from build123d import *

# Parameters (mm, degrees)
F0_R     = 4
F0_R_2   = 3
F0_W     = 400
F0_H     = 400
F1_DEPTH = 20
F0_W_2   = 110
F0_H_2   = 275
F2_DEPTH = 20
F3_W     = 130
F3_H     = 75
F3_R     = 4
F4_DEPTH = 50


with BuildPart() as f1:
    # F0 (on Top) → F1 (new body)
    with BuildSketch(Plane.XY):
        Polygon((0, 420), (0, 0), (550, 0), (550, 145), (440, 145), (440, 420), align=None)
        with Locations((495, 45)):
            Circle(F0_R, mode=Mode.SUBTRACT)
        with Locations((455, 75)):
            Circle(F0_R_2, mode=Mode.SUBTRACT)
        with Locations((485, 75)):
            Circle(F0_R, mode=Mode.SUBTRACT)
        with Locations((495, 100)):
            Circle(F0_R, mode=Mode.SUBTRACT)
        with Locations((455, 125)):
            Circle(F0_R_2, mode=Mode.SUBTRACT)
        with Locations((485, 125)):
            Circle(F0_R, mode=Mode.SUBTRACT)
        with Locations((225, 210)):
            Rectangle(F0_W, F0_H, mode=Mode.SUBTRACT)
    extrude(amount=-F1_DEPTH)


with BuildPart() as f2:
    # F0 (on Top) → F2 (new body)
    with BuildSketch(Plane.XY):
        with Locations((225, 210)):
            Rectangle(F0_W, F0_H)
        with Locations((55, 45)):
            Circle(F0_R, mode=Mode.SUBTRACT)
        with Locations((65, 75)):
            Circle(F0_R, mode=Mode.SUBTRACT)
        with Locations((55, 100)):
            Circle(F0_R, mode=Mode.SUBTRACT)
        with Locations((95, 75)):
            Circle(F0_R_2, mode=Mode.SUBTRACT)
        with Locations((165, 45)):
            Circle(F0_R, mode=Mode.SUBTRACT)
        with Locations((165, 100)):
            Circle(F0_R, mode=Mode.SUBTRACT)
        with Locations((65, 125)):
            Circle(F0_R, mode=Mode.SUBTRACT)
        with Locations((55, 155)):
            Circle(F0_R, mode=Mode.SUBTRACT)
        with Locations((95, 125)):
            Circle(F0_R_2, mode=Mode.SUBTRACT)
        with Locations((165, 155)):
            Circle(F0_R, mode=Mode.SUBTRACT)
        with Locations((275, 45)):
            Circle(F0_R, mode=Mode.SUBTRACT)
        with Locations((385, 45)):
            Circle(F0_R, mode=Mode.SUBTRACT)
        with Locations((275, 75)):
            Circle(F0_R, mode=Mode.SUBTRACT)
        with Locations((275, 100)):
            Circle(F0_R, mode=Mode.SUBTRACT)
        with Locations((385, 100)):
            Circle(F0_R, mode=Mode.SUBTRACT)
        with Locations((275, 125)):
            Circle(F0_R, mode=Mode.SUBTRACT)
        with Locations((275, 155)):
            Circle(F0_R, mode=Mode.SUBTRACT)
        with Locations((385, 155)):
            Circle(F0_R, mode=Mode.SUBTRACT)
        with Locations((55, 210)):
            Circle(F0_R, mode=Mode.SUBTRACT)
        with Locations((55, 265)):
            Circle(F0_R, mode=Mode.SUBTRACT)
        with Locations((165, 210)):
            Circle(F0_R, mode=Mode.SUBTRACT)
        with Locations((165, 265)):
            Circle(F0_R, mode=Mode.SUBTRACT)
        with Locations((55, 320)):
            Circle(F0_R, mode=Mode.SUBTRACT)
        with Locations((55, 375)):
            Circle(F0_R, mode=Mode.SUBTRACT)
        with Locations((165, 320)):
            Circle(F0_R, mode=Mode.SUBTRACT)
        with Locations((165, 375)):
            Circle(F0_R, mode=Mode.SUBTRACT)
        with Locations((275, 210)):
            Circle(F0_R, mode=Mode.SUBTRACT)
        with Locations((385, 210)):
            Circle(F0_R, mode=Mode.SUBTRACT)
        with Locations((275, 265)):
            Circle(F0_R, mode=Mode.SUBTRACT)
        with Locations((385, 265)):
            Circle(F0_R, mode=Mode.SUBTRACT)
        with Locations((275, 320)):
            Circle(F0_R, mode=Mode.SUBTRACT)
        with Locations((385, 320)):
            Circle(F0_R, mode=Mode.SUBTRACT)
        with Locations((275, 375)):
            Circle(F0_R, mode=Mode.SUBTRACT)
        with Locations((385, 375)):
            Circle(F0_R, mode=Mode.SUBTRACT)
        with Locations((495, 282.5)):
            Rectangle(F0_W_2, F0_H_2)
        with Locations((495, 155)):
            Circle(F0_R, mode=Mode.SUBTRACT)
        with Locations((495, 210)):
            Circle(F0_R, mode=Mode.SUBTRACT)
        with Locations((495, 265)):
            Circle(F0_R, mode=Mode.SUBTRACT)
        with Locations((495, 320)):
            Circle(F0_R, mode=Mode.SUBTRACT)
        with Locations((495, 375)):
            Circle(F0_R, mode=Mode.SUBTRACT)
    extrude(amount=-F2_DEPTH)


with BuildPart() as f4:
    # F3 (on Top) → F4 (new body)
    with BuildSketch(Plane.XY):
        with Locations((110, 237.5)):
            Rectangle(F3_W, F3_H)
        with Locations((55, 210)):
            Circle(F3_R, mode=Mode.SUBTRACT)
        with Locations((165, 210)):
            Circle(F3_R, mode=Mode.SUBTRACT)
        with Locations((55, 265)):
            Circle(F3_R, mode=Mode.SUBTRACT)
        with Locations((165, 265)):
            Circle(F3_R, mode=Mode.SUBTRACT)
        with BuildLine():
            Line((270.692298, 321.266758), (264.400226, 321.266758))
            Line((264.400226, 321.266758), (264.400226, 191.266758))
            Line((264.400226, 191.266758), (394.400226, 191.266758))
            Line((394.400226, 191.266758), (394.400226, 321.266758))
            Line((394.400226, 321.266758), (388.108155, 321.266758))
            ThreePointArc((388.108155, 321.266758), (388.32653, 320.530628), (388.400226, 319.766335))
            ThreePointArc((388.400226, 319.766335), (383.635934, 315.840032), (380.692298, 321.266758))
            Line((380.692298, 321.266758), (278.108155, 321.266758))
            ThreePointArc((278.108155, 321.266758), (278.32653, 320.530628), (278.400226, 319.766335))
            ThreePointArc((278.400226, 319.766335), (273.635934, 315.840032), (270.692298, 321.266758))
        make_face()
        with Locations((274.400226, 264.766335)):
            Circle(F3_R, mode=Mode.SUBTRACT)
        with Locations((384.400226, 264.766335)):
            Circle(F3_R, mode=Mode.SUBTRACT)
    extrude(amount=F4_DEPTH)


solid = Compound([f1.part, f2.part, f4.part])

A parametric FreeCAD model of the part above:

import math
import FreeCAD as App
import Part
import Sketcher
Q = App.Units.Quantity


def add_polygon(sketch, points):
    """Adds a closed chain of lines whose ends are joined by coincident constraints."""
    first, n = sketch.GeometryCount, len(points)
    for a, b in zip(points, points[1:] + points[:1]):
        sketch.addGeometry(Part.LineSegment(App.Vector(*a, 0), App.Vector(*b, 0)), False)
    for i in range(n):
        sketch.addConstraint(Sketcher.Constraint("Coincident", first + i, 2, first + (i + 1) % n, 1))

doc = App.newDocument("Part")
body = doc.addObject("PartDesign::Body", "Body")

sketch1 = doc.addObject("Sketcher::SketchObject", "Sketch")
body.addObject(sketch1)
sketch1.AttachmentSupport = (doc.XY_Plane, [""])
sketch1.MapMode = "FlatFace"
add_polygon(sketch1, [(0, 420), (0, 0), (550, 0), (550, 145), (440, 145), (440, 420)])
sketch1.addGeometry(Part.Circle(App.Vector(495, 45, 0), App.Vector(0, 0, 1), 4), False)
sketch1.addGeometry(Part.Circle(App.Vector(455, 75, 0), App.Vector(0, 0, 1), 3), False)
sketch1.addGeometry(Part.Circle(App.Vector(485, 75, 0), App.Vector(0, 0, 1), 4), False)
sketch1.addGeometry(Part.Circle(App.Vector(495, 100, 0), App.Vector(0, 0, 1), 4), False)
sketch1.addGeometry(Part.Circle(App.Vector(455, 125, 0), App.Vector(0, 0, 1), 3), False)
sketch1.addGeometry(Part.Circle(App.Vector(485, 125, 0), App.Vector(0, 0, 1), 4), False)
add_polygon(sketch1, [(425, 10), (25, 10), (25, 410), (425, 410)])
sketch1.addConstraint([
    Sketcher.Constraint("Vertical", 0),
    Sketcher.Constraint("Horizontal", 1),
    Sketcher.Constraint("Vertical", 2),
    Sketcher.Constraint("Horizontal", 3),
    Sketcher.Constraint("Vertical", 4),
    Sketcher.Constraint("Horizontal", 5),
    Sketcher.Constraint("Horizontal", 12),
    Sketcher.Constraint("Vertical", 13),
    Sketcher.Constraint("Horizontal", 14),
    Sketcher.Constraint("Vertical", 15),
    Sketcher.Constraint("Coincident", 0, 2, -1, 1),
    Sketcher.Constraint("Equal", 6, 8),
    Sketcher.Constraint("Equal", 8, 9),
    Sketcher.Constraint("Equal", 7, 10),
    Sketcher.Constraint("Equal", 9, 11),
    Sketcher.Constraint("Horizontal", 7, 3, 8, 3),
    Sketcher.Constraint("Horizontal", 10, 3, 11, 3),
    Sketcher.Constraint("Vertical", 6, 3, 9, 3),
    Sketcher.Constraint("Vertical", 7, 3, 10, 3),
    Sketcher.Constraint("Vertical", 8, 3, 11, 3),
    Sketcher.Constraint("Equal", 14, 13),
    Sketcher.Constraint("Diameter", 6, Q("8 mm")),
    Sketcher.Constraint("Diameter", 7, Q("6 mm")),
    Sketcher.Constraint("DistanceX", 1, 1, 1, 2, Q("550 mm")),
    Sketcher.Constraint("DistanceX", 3, 2, 3, 1, Q("110 mm")),
    Sketcher.Constraint("DistanceX", 12, 2, 12, 1, Q("400 mm")),
    Sketcher.Constraint("DistanceY", 0, 2, 0, 1, Q("420 mm")),
    Sketcher.Constraint("DistanceY", 2, 1, 2, 2, Q("145 mm")),
    Sketcher.Constraint("DistanceX", -1, 1, 6, 3, Q("495 mm")),
    Sketcher.Constraint("DistanceY", -1, 1, 6, 3, Q("45 mm")),
    Sketcher.Constraint("DistanceX", -1, 1, 7, 3, Q("455 mm")),
    Sketcher.Constraint("DistanceY", -1, 1, 7, 3, Q("75 mm")),
    Sketcher.Constraint("DistanceX", -1, 1, 8, 3, Q("485 mm")),
    Sketcher.Constraint("DistanceY", -1, 1, 9, 3, Q("100 mm")),
    Sketcher.Constraint("DistanceY", -1, 1, 10, 3, Q("125 mm")),
    Sketcher.Constraint("DistanceX", -1, 1, 12, 2, Q("25 mm")),
    Sketcher.Constraint("DistanceY", -1, 1, 12, 2, Q("10 mm")),
])
pad1 = doc.addObject("PartDesign::Pad", "Pad")
body.addObject(pad1)
pad1.Profile = sketch1
pad1.Length = 20
pad1.Reversed = True
body2 = doc.addObject("PartDesign::Body", "Body001")
body2.AllowCompound = True

sketch2 = doc.addObject("Sketcher::SketchObject", "Sketch001")
body2.addObject(sketch2)
sketch2.AttachmentSupport = (doc.getObject("XY_Plane001"), [""])
sketch2.MapMode = "FlatFace"
add_polygon(sketch2, [(25, 410), (25, 10), (425, 10), (425, 410)])
sketch2.addGeometry(Part.Circle(App.Vector(55, 45, 0), App.Vector(0, 0, 1), 4), False)
sketch2.addGeometry(Part.Circle(App.Vector(65, 75, 0), App.Vector(0, 0, 1), 4), False)
sketch2.addGeometry(Part.Circle(App.Vector(95, 75, 0), App.Vector(0, 0, 1), 3), False)
sketch2.addGeometry(Part.Circle(App.Vector(55, 100, 0), App.Vector(0, 0, 1), 4), False)
sketch2.addGeometry(Part.Circle(App.Vector(65, 125, 0), App.Vector(0, 0, 1), 4), False)
sketch2.addGeometry(Part.Circle(App.Vector(95, 125, 0), App.Vector(0, 0, 1), 3), False)
sketch2.addGeometry(Part.Circle(App.Vector(165, 45, 0), App.Vector(0, 0, 1), 4), False)
sketch2.addGeometry(Part.Circle(App.Vector(165, 100, 0), App.Vector(0, 0, 1), 4), False)
sketch2.addGeometry(Part.Circle(App.Vector(55, 155, 0), App.Vector(0, 0, 1), 4), False)
sketch2.addGeometry(Part.Circle(App.Vector(165, 155, 0), App.Vector(0, 0, 1), 4), False)
sketch2.addGeometry(Part.Circle(App.Vector(275, 45, 0), App.Vector(0, 0, 1), 4), False)
sketch2.addGeometry(Part.Circle(App.Vector(275, 75, 0), App.Vector(0, 0, 1), 4), False)
sketch2.addGeometry(Part.Circle(App.Vector(275, 100, 0), App.Vector(0, 0, 1), 4), False)
sketch2.addGeometry(Part.Circle(App.Vector(275, 125, 0), App.Vector(0, 0, 1), 4), False)
sketch2.addGeometry(Part.Circle(App.Vector(385, 45, 0), App.Vector(0, 0, 1), 4), False)
sketch2.addGeometry(Part.Circle(App.Vector(385, 100, 0), App.Vector(0, 0, 1), 4), False)
sketch2.addGeometry(Part.Circle(App.Vector(275, 155, 0), App.Vector(0, 0, 1), 4), False)
sketch2.addGeometry(Part.Circle(App.Vector(385, 155, 0), App.Vector(0, 0, 1), 4), False)
sketch2.addGeometry(Part.Circle(App.Vector(55, 210, 0), App.Vector(0, 0, 1), 4), False)
sketch2.addGeometry(Part.Circle(App.Vector(55, 265, 0), App.Vector(0, 0, 1), 4), False)
sketch2.addGeometry(Part.Circle(App.Vector(165, 210, 0), App.Vector(0, 0, 1), 4), False)
sketch2.addGeometry(Part.Circle(App.Vector(165, 265, 0), App.Vector(0, 0, 1), 4), False)
sketch2.addGeometry(Part.Circle(App.Vector(55, 320, 0), App.Vector(0, 0, 1), 4), False)
sketch2.addGeometry(Part.Circle(App.Vector(55, 375, 0), App.Vector(0, 0, 1), 4), False)
sketch2.addGeometry(Part.Circle(App.Vector(165, 320, 0), App.Vector(0, 0, 1), 4), False)
sketch2.addGeometry(Part.Circle(App.Vector(165, 375, 0), App.Vector(0, 0, 1), 4), False)
sketch2.addGeometry(Part.Circle(App.Vector(275, 210, 0), App.Vector(0, 0, 1), 4), False)
sketch2.addGeometry(Part.Circle(App.Vector(275, 265, 0), App.Vector(0, 0, 1), 4), False)
sketch2.addGeometry(Part.Circle(App.Vector(385, 210, 0), App.Vector(0, 0, 1), 4), False)
sketch2.addGeometry(Part.Circle(App.Vector(385, 265, 0), App.Vector(0, 0, 1), 4), False)
sketch2.addGeometry(Part.Circle(App.Vector(275, 320, 0), App.Vector(0, 0, 1), 4), False)
sketch2.addGeometry(Part.Circle(App.Vector(275, 375, 0), App.Vector(0, 0, 1), 4), False)
sketch2.addGeometry(Part.Circle(App.Vector(385, 320, 0), App.Vector(0, 0, 1), 4), False)
sketch2.addGeometry(Part.Circle(App.Vector(385, 375, 0), App.Vector(0, 0, 1), 4), False)
add_polygon(sketch2, [(440, 420), (440, 145), (550, 145), (550, 420)])
sketch2.addGeometry(Part.Circle(App.Vector(495, 155, 0), App.Vector(0, 0, 1), 4), False)
sketch2.addGeometry(Part.Circle(App.Vector(495, 210, 0), App.Vector(0, 0, 1), 4), False)
sketch2.addGeometry(Part.Circle(App.Vector(495, 265, 0), App.Vector(0, 0, 1), 4), False)
sketch2.addGeometry(Part.Circle(App.Vector(495, 320, 0), App.Vector(0, 0, 1), 4), False)
sketch2.addGeometry(Part.Circle(App.Vector(495, 375, 0), App.Vector(0, 0, 1), 4), False)
sketch2.addConstraint([
    Sketcher.Constraint("Vertical", 0),
    Sketcher.Constraint("Horizontal", 1),
    Sketcher.Constraint("Vertical", 2),
    Sketcher.Constraint("Horizontal", 3),
    Sketcher.Constraint("Vertical", 38),
    Sketcher.Constraint("Horizontal", 39),
    Sketcher.Constraint("Vertical", 40),
    Sketcher.Constraint("Horizontal", 41),
    Sketcher.Constraint("Equal", 4, 5),
    Sketcher.Constraint("Equal", 5, 7),
    Sketcher.Constraint("Equal", 7, 8),
    Sketcher.Constraint("Equal", 6, 9),
    Sketcher.Constraint("Equal", 8, 10),
    Sketcher.Constraint("Equal", 10, 11),
    Sketcher.Constraint("Equal", 11, 12),
    Sketcher.Constraint("Equal", 12, 13),
    Sketcher.Constraint("Equal", 13, 14),
    Sketcher.Constraint("Equal", 14, 15),
    Sketcher.Constraint("Equal", 15, 16),
    Sketcher.Constraint("Equal", 16, 17),
    Sketcher.Constraint("Equal", 17, 18),
    Sketcher.Constraint("Equal", 18, 19),
    Sketcher.Constraint("Equal", 19, 20),
    Sketcher.Constraint("Equal", 20, 21),
    Sketcher.Constraint("Equal", 21, 22),
    Sketcher.Constraint("Equal", 22, 23),
    Sketcher.Constraint("Equal", 23, 24),
    Sketcher.Constraint("Equal", 24, 25),
    Sketcher.Constraint("Equal", 25, 26),
    Sketcher.Constraint("Equal", 26, 27),
    Sketcher.Constraint("Equal", 27, 28),
    Sketcher.Constraint("Equal", 28, 29),
    Sketcher.Constraint("Equal", 29, 30),
    Sketcher.Constraint("Equal", 30, 31),
    Sketcher.Constraint("Equal", 31, 32),
    Sketcher.Constraint("Equal", 32, 33),
    Sketcher.Constraint("Equal", 33, 34),
    Sketcher.Constraint("Equal", 34, 35),
    Sketcher.Constraint("Equal", 35, 36),
    Sketcher.Constraint("Equal", 36, 37),
    Sketcher.Constraint("Equal", 37, 42),
    Sketcher.Constraint("Equal", 42, 43),
    Sketcher.Constraint("Equal", 43, 44),
    Sketcher.Constraint("Equal", 44, 45),
    Sketcher.Constraint("Equal", 45, 46),
    Sketcher.Constraint("Horizontal", 5, 3, 6, 3),
    Sketcher.Constraint("Horizontal", 8, 3, 9, 3),
    Sketcher.Constraint("Horizontal", 4, 3, 10, 3),
    Sketcher.Constraint("Horizontal", 7, 3, 11, 3),
    Sketcher.Constraint("Horizontal", 12, 3, 13, 3),
    Sketcher.Constraint("Horizontal", 10, 3, 14, 3),
    Sketcher.Constraint("Horizontal", 6, 3, 15, 3),
    Sketcher.Constraint("Horizontal", 11, 3, 16, 3),
    Sketcher.Constraint("Horizontal", 9, 3, 17, 3),
    Sketcher.Constraint("Horizontal", 14, 3, 18, 3),
    Sketcher.Constraint("Horizontal", 16, 3, 19, 3),
    Sketcher.Constraint("Horizontal", 13, 3, 20, 3),
    Sketcher.Constraint("Horizontal", 20, 3, 21, 3),
    Sketcher.Constraint("Horizontal", 22, 3, 24, 3),
    Sketcher.Constraint("Horizontal", 23, 3, 25, 3),
    Sketcher.Constraint("Horizontal", 26, 3, 28, 3),
    Sketcher.Constraint("Horizontal", 27, 3, 29, 3),
    Sketcher.Constraint("Horizontal", 24, 3, 30, 3),
    Sketcher.Constraint("Horizontal", 25, 3, 31, 3),
    Sketcher.Constraint("Horizontal", 30, 3, 32, 3),
    Sketcher.Constraint("Horizontal", 31, 3, 33, 3),
    Sketcher.Constraint("Horizontal", 28, 3, 34, 3),
    Sketcher.Constraint("Horizontal", 29, 3, 35, 3),
    Sketcher.Constraint("Horizontal", 34, 3, 36, 3),
    Sketcher.Constraint("Horizontal", 35, 3, 37, 3),
    Sketcher.Constraint("Horizontal", 21, 3, 42, 3),
    Sketcher.Constraint("Horizontal", 32, 3, 43, 3),
    Sketcher.Constraint("Horizontal", 33, 3, 44, 3),
    Sketcher.Constraint("Horizontal", 36, 3, 45, 3),
    Sketcher.Constraint("Horizontal", 37, 3, 46, 3),
    Sketcher.Constraint("Vertical", 4, 3, 7, 3),
    Sketcher.Constraint("Vertical", 5, 3, 8, 3),
    Sketcher.Constraint("Vertical", 6, 3, 9, 3),
    Sketcher.Constraint("Vertical", 10, 3, 11, 3),
    Sketcher.Constraint("Vertical", 7, 3, 12, 3),
    Sketcher.Constraint("Vertical", 11, 3, 13, 3),
    Sketcher.Constraint("Vertical", 14, 3, 15, 3),
    Sketcher.Constraint("Vertical", 15, 3, 16, 3),
    Sketcher.Constraint("Vertical", 16, 3, 17, 3),
    Sketcher.Constraint("Vertical", 18, 3, 19, 3),
    Sketcher.Constraint("Vertical", 17, 3, 20, 3),
    Sketcher.Constraint("Vertical", 19, 3, 21, 3),
    Sketcher.Constraint("Vertical", 12, 3, 22, 3),
    Sketcher.Constraint("Vertical", 22, 3, 23, 3),
    Sketcher.Constraint("Vertical", 13, 3, 24, 3),
    Sketcher.Constraint("Vertical", 24, 3, 25, 3),
    Sketcher.Constraint("Vertical", 23, 3, 26, 3),
    Sketcher.Constraint("Vertical", 26, 3, 27, 3),
    Sketcher.Constraint("Vertical", 25, 3, 28, 3),
    Sketcher.Constraint("Vertical", 28, 3, 29, 3),
    Sketcher.Constraint("Vertical", 20, 3, 30, 3),
    Sketcher.Constraint("Vertical", 30, 3, 31, 3),
    Sketcher.Constraint("Vertical", 21, 3, 32, 3),
    Sketcher.Constraint("Vertical", 32, 3, 33, 3),
    Sketcher.Constraint("Vertical", 31, 3, 34, 3),
    Sketcher.Constraint("Vertical", 34, 3, 35, 3),
    Sketcher.Constraint("Vertical", 33, 3, 36, 3),
    Sketcher.Constraint("Vertical", 36, 3, 37, 3),
    Sketcher.Constraint("Vertical", 42, 3, 43, 3),
    Sketcher.Constraint("Vertical", 43, 3, 44, 3),
    Sketcher.Constraint("Vertical", 44, 3, 45, 3),
    Sketcher.Constraint("Vertical", 45, 3, 46, 3),
    Sketcher.Constraint("Equal", 3, 0),
    Sketcher.Constraint("Diameter", 4, Q("8 mm")),
    Sketcher.Constraint("Diameter", 6, Q("6 mm")),
    Sketcher.Constraint("DistanceX", 1, 1, 1, 2, Q("400 mm")),
    Sketcher.Constraint("DistanceX", 39, 1, 39, 2, Q("110 mm")),
    Sketcher.Constraint("DistanceY", 38, 2, 38, 1, Q("275 mm")),
    Sketcher.Constraint("DistanceX", -1, 1, 4, 3, Q("55 mm")),
    Sketcher.Constraint("DistanceY", -1, 1, 4, 3, Q("45 mm")),
    Sketcher.Constraint("DistanceX", -1, 1, 5, 3, Q("65 mm")),
    Sketcher.Constraint("DistanceY", -1, 1, 5, 3, Q("75 mm")),
    Sketcher.Constraint("DistanceX", -1, 1, 6, 3, Q("95 mm")),
    Sketcher.Constraint("DistanceY", -1, 1, 7, 3, Q("100 mm")),
    Sketcher.Constraint("DistanceY", -1, 1, 8, 3, Q("125 mm")),
    Sketcher.Constraint("DistanceX", -1, 1, 10, 3, Q("165 mm")),
    Sketcher.Constraint("DistanceY", -1, 1, 12, 3, Q("155 mm")),
    Sketcher.Constraint("DistanceX", -1, 1, 14, 3, Q("275 mm")),
    Sketcher.Constraint("DistanceX", -1, 1, 18, 3, Q("385 mm")),
    Sketcher.Constraint("DistanceY", -1, 1, 22, 3, Q("210 mm")),
    Sketcher.Constraint("DistanceY", -1, 1, 23, 3, Q("265 mm")),
    Sketcher.Constraint("DistanceY", -1, 1, 26, 3, Q("320 mm")),
    Sketcher.Constraint("DistanceY", -1, 1, 27, 3, Q("375 mm")),
    Sketcher.Constraint("DistanceX", -1, 1, 42, 3, Q("495 mm")),
    Sketcher.Constraint("DistanceX", -1, 1, 0, 2, Q("25 mm")),
    Sketcher.Constraint("DistanceY", -1, 1, 0, 2, Q("10 mm")),
    Sketcher.Constraint("DistanceX", -1, 1, 38, 2, Q("440 mm")),
    Sketcher.Constraint("DistanceY", -1, 1, 38, 2, Q("145 mm")),
])
pad2 = doc.addObject("PartDesign::Pad", "Pad001")
body2.addObject(pad2)
pad2.Profile = sketch2
pad2.Length = 20
pad2.Reversed = True
body3 = doc.addObject("PartDesign::Body", "Body002")
body3.AllowCompound = True

sketch3 = doc.addObject("Sketcher::SketchObject", "Sketch002")
body3.addObject(sketch3)
sketch3.AttachmentSupport = (doc.getObject("XY_Plane002"), [""])
sketch3.MapMode = "FlatFace"
add_polygon(sketch3, [(45, 275), (45, 200), (175, 200), (175, 275)])
sketch3.addGeometry(Part.Circle(App.Vector(55, 210, 0), App.Vector(0, 0, 1), 4), False)
sketch3.addGeometry(Part.Circle(App.Vector(165, 210, 0), App.Vector(0, 0, 1), 4), False)
sketch3.addGeometry(Part.Circle(App.Vector(55, 265, 0), App.Vector(0, 0, 1), 4), False)
sketch3.addGeometry(Part.Circle(App.Vector(165, 265, 0), App.Vector(0, 0, 1), 4), False)
sketch3.addGeometry(Part.LineSegment(App.Vector(270.692298, 321.266758, 0), App.Vector(264.400226, 321.266758, 0)), False)
sketch3.addGeometry(Part.LineSegment(App.Vector(264.400226, 321.266758, 0), App.Vector(264.400226, 191.266758, 0)), False)
sketch3.addGeometry(Part.LineSegment(App.Vector(264.400226, 191.266758, 0), App.Vector(394.400226, 191.266758, 0)), False)
sketch3.addGeometry(Part.LineSegment(App.Vector(394.400226, 191.266758, 0), App.Vector(394.400226, 321.266758, 0)), False)
sketch3.addGeometry(Part.LineSegment(App.Vector(394.400226, 321.266758, 0), App.Vector(388.108155, 321.266758, 0)), False)
sketch3.addGeometry(Part.ArcOfCircle(Part.Circle(App.Vector(384.400249, 319.766342, 0), App.Vector(0, 0, 1), 3.999977), math.radians(-0.000097), math.radians(22.03088)), False)
sketch3.addGeometry(Part.ArcOfCircle(Part.Circle(App.Vector(384.400226, 319.766335, 0), App.Vector(0, 0, 1), 4), math.radians(157.969154), math.radians(359.999997)), False)
sketch3.addGeometry(Part.LineSegment(App.Vector(380.692298, 321.266758, 0), App.Vector(278.108155, 321.266758, 0)), False)
sketch3.addGeometry(Part.ArcOfCircle(Part.Circle(App.Vector(274.400249, 319.766342, 0), App.Vector(0, 0, 1), 3.999977), math.radians(-0.000097), math.radians(22.03088)), False)
sketch3.addGeometry(Part.ArcOfCircle(Part.Circle(App.Vector(274.400226, 319.766335, 0), App.Vector(0, 0, 1), 4), math.radians(157.969154), math.radians(359.999997)), False)
sketch3.addGeometry(Part.Circle(App.Vector(274.400226, 264.766335, 0), App.Vector(0, 0, 1), 4), False)
sketch3.addGeometry(Part.Circle(App.Vector(384.400226, 264.766335, 0), App.Vector(0, 0, 1), 4), False)
sketch3.addConstraint([
    Sketcher.Constraint("Coincident", 8, 2, 9, 1),
    Sketcher.Constraint("Coincident", 9, 2, 10, 1),
    Sketcher.Constraint("Coincident", 10, 2, 11, 1),
    Sketcher.Constraint("Coincident", 11, 2, 12, 1),
    Sketcher.Constraint("Coincident", 12, 2, 13, 2),
    Sketcher.Constraint("Coincident", 13, 1, 14, 2),
    Sketcher.Constraint("Coincident", 14, 1, 15, 1),
    Sketcher.Constraint("Coincident", 15, 2, 16, 2),
    Sketcher.Constraint("Coincident", 16, 1, 17, 2),
    Sketcher.Constraint("Coincident", 17, 1, 8, 1),
    Sketcher.Constraint("Vertical", 0),
    Sketcher.Constraint("Horizontal", 1),
    Sketcher.Constraint("Vertical", 2),
    Sketcher.Constraint("Horizontal", 3),
    Sketcher.Constraint("Horizontal", 8),
    Sketcher.Constraint("Vertical", 9),
    Sketcher.Constraint("Horizontal", 10),
    Sketcher.Constraint("Vertical", 11),
    Sketcher.Constraint("Horizontal", 12),
    Sketcher.Constraint("Horizontal", 15),
    Sketcher.Constraint("Diameter", 4, Q("8 mm")),
    Sketcher.Constraint("Diameter", 5, Q("8 mm")),
    Sketcher.Constraint("Diameter", 6, Q("8 mm")),
    Sketcher.Constraint("Diameter", 7, Q("8 mm")),
    Sketcher.Constraint("Diameter", 18, Q("8 mm")),
    Sketcher.Constraint("Diameter", 19, Q("8 mm")),
    Sketcher.Constraint("Radius", 14, Q("4 mm")),
    Sketcher.Constraint("Radius", 17, Q("4 mm")),
    Sketcher.Constraint("DistanceX", 1, 1, 1, 2, Q("130 mm")),
    Sketcher.Constraint("DistanceX", 10, 1, 10, 2, Q("130 mm")),
    Sketcher.Constraint("DistanceY", 0, 2, 0, 1, Q("75 mm")),
    Sketcher.Constraint("DistanceY", 9, 2, 9, 1, Q("130 mm")),
    Sketcher.Constraint("DistanceY", 11, 1, 11, 2, Q("130 mm")),
    Sketcher.Constraint("DistanceX", -1, 1, 4, 3, Q("55 mm")),
    Sketcher.Constraint("DistanceY", -1, 1, 4, 3, Q("210 mm")),
    Sketcher.Constraint("DistanceX", -1, 1, 5, 3, Q("165 mm")),
    Sketcher.Constraint("DistanceY", -1, 1, 5, 3, Q("210 mm")),
    Sketcher.Constraint("DistanceX", -1, 1, 6, 3, Q("55 mm")),
    Sketcher.Constraint("DistanceY", -1, 1, 6, 3, Q("265 mm")),
    Sketcher.Constraint("DistanceX", -1, 1, 7, 3, Q("165 mm")),
    Sketcher.Constraint("DistanceY", -1, 1, 7, 3, Q("265 mm")),
    Sketcher.Constraint("DistanceX", -1, 1, 0, 2, Q("45 mm")),
    Sketcher.Constraint("DistanceY", -1, 1, 0, 2, Q("200 mm")),
    Sketcher.Constraint("DistanceX", 16, 3, 13, 3, Q("110 mm")),
    Sketcher.Constraint("DistanceX", 17, 3, 14, 3, Q("110 mm")),
    Sketcher.Constraint("DistanceY", 18, 3, 17, 3, Q("55 mm")),
    Sketcher.Constraint("DistanceX", 18, 3, 14, 3, Q("110 mm")),
    Sketcher.Constraint("DistanceY", 18, 3, 14, 3, Q("55 mm")),
    Sketcher.Constraint("DistanceY", 19, 3, 14, 3, Q("55 mm")),
    Sketcher.Constraint("DistanceX", 18, 3, 19, 3, Q("110 mm")),
    Sketcher.Constraint("DistanceX", 8, 2, 17, 3, Q("10 mm")),
    Sketcher.Constraint("DistanceY", 19, 3, 13, 1, Q("55 mm")),
    Sketcher.Constraint("DistanceY", 18, 3, 16, 1, Q("55 mm")),
    Sketcher.Constraint("Radius", 13, Q("3.999977 mm")),
    Sketcher.Constraint("DistanceX", 12, 2, 12, 1, Q("6.292071 mm")),
    Sketcher.Constraint("DistanceX", 8, 2, 8, 1, Q("6.292072 mm")),
    Sketcher.Constraint("DistanceX", 15, 2, 15, 1, Q("102.584143 mm")),
    Sketcher.Constraint("DistanceX", -1, 1, 13, 3, Q("384.400249 mm")),
    Sketcher.Constraint("DistanceY", -1, 1, 13, 3, Q("319.766342 mm")),
    Sketcher.Constraint("DistanceY", -1, 1, 16, 3, Q("319.766342 mm")),
])
pad3 = doc.addObject("PartDesign::Pad", "Pad002")
body3.addObject(pad3)
pad3.Profile = sketch3
pad3.Length = 50

doc.recompute()
